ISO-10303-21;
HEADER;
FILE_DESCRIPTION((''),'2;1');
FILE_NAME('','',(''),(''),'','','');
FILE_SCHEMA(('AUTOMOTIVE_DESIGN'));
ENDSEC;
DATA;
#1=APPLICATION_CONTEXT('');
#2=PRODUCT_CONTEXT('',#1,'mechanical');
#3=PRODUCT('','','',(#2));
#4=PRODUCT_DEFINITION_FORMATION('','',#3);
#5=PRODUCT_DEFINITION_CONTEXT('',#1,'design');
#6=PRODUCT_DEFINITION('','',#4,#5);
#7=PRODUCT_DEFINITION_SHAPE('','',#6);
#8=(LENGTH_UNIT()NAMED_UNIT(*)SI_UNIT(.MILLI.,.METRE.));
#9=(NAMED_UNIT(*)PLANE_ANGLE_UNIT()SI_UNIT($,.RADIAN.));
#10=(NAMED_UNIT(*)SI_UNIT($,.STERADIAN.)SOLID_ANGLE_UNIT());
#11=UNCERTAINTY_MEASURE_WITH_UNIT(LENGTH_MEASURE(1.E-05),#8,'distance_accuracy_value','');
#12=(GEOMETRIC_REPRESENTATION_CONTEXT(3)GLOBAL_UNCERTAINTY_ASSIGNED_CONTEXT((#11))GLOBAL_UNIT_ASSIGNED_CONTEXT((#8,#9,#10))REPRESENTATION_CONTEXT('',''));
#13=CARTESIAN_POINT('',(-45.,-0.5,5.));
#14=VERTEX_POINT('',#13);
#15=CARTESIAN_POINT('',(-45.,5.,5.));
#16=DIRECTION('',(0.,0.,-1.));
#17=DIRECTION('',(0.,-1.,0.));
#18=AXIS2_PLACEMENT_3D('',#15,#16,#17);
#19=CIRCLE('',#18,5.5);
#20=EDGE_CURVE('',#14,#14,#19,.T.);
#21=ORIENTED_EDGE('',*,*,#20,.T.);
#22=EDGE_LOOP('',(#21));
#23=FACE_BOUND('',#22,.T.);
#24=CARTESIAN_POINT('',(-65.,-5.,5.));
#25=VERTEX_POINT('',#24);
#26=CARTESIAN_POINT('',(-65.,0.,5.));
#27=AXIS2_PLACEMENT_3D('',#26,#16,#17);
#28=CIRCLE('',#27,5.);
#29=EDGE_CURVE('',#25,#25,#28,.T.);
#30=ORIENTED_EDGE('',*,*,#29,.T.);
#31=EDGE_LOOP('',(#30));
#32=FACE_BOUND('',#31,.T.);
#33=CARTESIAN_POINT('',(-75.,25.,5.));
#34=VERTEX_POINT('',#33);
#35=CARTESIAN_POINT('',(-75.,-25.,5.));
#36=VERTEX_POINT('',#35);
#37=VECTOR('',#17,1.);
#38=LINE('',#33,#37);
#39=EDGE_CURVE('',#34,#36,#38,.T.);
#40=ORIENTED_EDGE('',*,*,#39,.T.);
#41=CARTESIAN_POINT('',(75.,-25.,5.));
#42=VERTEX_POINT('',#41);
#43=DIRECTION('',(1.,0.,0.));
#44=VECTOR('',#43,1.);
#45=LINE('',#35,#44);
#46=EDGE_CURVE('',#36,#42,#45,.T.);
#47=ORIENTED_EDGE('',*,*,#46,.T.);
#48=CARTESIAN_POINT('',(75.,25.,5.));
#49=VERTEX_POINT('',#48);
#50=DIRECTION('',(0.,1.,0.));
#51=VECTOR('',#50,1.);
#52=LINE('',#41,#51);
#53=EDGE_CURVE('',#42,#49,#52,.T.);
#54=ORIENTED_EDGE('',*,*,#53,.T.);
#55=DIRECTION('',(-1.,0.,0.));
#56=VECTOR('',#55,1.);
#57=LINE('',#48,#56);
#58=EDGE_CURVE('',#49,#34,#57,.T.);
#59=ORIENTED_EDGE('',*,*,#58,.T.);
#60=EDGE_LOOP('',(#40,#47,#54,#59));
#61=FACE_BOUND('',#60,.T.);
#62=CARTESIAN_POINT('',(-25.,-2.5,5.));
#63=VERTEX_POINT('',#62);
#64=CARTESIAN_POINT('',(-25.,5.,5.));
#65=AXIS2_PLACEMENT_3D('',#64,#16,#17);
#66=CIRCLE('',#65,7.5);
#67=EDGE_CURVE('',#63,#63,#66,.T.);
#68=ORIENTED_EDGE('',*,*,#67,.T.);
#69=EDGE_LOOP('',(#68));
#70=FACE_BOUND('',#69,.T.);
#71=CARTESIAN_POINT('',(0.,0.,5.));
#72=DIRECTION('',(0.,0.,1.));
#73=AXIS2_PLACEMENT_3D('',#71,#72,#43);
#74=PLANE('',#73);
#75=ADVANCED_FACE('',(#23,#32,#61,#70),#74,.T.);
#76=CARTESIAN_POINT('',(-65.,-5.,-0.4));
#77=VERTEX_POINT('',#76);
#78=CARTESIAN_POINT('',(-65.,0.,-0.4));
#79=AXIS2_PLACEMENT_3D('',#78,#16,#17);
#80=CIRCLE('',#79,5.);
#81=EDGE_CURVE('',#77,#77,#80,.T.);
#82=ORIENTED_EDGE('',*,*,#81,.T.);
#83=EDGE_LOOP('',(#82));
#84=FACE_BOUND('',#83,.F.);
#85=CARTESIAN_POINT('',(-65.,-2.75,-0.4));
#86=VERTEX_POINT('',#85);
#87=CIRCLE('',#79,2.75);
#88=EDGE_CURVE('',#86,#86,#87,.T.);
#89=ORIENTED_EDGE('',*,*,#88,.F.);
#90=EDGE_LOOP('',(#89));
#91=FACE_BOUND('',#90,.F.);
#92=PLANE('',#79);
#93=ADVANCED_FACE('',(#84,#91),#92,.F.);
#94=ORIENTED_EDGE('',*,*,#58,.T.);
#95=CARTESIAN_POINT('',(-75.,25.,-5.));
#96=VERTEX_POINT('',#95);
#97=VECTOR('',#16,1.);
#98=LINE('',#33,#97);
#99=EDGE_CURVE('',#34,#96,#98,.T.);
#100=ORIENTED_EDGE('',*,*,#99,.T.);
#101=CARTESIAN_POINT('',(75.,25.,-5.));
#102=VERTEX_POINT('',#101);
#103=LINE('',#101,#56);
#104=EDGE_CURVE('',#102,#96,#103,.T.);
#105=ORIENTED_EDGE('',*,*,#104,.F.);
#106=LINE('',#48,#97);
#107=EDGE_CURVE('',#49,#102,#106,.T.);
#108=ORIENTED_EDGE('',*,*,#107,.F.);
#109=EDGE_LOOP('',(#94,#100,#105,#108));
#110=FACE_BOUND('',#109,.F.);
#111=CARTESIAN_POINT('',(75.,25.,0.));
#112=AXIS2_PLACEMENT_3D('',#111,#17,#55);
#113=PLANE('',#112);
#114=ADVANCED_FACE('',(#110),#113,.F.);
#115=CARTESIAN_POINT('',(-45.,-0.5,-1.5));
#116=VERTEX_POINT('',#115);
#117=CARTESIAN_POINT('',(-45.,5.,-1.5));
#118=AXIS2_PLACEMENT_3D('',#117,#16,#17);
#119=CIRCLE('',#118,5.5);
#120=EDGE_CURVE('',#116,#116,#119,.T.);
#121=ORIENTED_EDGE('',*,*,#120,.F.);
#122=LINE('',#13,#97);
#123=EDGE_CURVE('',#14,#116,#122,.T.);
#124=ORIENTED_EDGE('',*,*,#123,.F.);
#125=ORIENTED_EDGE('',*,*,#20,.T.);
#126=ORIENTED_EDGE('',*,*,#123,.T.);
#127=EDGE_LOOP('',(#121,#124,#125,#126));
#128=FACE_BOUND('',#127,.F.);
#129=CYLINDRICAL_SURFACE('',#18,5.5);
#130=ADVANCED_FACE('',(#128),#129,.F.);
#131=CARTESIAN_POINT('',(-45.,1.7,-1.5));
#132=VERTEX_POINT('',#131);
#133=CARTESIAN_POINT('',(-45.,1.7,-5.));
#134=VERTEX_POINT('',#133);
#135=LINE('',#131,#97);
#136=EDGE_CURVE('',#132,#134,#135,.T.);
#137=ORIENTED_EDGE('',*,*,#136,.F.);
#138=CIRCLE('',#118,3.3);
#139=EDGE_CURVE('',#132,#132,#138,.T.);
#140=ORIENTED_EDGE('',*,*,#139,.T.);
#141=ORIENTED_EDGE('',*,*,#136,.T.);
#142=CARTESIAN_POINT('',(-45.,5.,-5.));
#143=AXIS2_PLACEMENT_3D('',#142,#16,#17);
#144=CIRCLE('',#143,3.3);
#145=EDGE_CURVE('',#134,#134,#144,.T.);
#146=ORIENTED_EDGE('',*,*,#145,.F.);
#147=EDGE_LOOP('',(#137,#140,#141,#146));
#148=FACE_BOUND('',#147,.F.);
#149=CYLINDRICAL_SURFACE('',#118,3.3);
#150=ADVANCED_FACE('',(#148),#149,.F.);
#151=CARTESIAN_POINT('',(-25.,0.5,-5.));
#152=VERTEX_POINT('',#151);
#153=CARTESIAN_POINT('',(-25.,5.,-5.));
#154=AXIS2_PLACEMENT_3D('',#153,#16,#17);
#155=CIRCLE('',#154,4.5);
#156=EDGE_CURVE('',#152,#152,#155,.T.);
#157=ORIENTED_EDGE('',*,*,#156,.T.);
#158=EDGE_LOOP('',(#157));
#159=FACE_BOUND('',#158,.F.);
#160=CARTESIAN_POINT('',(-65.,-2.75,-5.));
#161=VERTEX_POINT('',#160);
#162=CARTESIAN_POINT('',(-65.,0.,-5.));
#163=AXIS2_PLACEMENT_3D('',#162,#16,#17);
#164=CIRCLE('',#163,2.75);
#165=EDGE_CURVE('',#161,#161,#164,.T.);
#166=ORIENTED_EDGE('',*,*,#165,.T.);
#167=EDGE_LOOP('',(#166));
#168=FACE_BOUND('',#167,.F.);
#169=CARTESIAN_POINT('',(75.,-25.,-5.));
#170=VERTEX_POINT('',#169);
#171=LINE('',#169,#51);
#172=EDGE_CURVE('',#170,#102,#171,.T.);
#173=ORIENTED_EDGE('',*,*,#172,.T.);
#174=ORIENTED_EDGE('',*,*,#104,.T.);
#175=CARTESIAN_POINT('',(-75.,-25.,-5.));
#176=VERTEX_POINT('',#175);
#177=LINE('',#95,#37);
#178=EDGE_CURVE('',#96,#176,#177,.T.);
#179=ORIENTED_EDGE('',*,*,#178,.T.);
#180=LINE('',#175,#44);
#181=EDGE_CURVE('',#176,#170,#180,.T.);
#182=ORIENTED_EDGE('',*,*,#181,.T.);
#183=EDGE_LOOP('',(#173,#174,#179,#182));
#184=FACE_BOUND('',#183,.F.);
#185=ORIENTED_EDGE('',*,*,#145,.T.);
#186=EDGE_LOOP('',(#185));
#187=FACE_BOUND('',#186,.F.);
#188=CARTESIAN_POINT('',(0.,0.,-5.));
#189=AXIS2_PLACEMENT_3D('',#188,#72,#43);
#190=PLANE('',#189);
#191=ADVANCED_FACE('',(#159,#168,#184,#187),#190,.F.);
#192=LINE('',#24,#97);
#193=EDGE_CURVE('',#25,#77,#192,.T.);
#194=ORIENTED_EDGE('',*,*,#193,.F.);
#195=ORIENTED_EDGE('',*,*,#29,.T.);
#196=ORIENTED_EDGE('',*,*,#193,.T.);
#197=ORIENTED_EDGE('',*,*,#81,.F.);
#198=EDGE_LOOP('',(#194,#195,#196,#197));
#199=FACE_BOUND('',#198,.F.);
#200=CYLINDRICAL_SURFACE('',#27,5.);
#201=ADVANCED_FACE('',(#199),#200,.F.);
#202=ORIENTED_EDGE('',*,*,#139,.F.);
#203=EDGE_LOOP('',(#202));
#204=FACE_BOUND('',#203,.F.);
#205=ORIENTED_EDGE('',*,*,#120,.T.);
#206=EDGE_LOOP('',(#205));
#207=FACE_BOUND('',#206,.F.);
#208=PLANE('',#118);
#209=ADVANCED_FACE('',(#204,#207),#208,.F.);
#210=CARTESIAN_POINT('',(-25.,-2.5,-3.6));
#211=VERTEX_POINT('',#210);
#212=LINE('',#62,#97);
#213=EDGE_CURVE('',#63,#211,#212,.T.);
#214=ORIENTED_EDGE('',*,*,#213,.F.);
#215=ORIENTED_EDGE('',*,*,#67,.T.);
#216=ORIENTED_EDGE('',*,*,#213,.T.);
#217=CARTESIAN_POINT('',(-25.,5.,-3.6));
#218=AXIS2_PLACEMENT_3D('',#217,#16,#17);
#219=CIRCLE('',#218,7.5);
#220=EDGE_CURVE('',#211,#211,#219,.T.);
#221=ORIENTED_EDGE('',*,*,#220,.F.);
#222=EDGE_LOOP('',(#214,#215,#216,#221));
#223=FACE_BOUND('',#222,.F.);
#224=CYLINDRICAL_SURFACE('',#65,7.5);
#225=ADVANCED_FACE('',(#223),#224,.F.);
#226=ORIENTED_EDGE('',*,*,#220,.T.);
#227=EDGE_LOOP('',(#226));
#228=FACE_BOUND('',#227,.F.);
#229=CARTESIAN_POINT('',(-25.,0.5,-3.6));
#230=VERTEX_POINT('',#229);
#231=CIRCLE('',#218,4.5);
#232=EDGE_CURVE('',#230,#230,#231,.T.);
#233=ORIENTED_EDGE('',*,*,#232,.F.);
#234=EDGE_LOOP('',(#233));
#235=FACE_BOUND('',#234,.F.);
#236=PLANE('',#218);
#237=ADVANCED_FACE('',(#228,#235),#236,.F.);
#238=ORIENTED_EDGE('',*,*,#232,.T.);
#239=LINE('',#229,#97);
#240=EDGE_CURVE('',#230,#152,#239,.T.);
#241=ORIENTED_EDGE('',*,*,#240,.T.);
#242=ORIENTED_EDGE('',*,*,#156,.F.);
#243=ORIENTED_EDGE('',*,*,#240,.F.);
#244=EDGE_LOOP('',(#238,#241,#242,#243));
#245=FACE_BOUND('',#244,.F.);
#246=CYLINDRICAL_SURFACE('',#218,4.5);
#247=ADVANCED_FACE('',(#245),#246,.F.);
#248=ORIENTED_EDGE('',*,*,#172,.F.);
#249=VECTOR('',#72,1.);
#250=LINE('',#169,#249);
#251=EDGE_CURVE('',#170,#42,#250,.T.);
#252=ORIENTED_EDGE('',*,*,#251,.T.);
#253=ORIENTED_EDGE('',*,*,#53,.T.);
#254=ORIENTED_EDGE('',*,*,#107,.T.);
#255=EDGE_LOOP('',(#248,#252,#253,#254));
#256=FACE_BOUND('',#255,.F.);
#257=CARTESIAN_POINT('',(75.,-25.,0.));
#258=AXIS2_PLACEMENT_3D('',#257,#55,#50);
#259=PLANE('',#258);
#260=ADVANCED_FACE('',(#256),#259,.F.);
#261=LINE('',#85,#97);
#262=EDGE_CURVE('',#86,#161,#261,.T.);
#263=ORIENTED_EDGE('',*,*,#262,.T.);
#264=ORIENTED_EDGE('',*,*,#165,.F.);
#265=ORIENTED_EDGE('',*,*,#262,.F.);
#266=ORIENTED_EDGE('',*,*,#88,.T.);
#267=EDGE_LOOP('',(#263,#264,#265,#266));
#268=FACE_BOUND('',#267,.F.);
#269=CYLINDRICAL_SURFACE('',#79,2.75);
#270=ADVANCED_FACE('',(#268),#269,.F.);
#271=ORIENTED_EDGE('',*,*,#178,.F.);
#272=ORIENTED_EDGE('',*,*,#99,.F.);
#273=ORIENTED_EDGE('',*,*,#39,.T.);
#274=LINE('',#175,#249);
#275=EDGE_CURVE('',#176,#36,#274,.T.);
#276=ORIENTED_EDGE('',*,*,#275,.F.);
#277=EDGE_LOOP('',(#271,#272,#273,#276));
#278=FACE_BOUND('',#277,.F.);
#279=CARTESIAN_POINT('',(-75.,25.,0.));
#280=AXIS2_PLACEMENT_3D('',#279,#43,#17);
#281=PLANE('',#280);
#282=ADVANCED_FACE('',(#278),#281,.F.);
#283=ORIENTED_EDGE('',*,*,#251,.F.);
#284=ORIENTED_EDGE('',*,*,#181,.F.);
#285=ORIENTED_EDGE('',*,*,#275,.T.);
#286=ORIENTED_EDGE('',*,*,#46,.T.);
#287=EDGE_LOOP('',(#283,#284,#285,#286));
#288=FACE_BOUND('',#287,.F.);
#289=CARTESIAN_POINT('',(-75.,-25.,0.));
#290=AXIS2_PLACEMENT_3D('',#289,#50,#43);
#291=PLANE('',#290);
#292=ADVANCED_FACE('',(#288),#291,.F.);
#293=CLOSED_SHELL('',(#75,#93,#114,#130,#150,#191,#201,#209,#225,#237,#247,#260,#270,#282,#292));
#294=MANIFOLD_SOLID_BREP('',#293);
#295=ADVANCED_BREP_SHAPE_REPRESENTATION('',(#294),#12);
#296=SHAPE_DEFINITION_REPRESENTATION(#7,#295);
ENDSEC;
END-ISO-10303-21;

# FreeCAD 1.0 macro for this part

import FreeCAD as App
import Part
import Sketcher


def add_polygon(sketch, points):
    """Adds a closed chain of lines whose ends are joined by coincident constraints."""
    first, n = sketch.GeometryCount, len(points)
    for a, b in zip(points, points[1:] + points[:1]):
        sketch.addGeometry(Part.LineSegment(App.Vector(*a, 0), App.Vector(*b, 0)), False)
    for i in range(n):
        sketch.addConstraint(Sketcher.Constraint("Coincident", first + i, 2, first + (i + 1) % n, 1))

doc = App.newDocument("Part")
body = doc.addObject("PartDesign::Body", "Body")

# Sketch on XY plane
sketch1 = doc.addObject("Sketcher::SketchObject", "Sketch")
body.addObject(sketch1)
sketch1.AttachmentSupport = (doc.XY_Plane, [""])
sketch1.MapMode = "FlatFace"
add_polygon(sketch1, [(-75, 25), (-75, -25), (75, -25), (75, 25)])  # lines 0-3
sketch1.addConstraint(Sketcher.Constraint("Vertical", 0))
sketch1.addConstraint(Sketcher.Constraint("Horizontal", 1))
sketch1.addConstraint(Sketcher.Constraint("Vertical", 2))
sketch1.addConstraint(Sketcher.Constraint("Horizontal", 3))
sketch1.addConstraint(Sketcher.Constraint("Symmetric", 0, 2, 2, 2, -1, 1))
sketch1.addConstraint(Sketcher.Constraint("DistanceX", 1, 1, 1, 2, 150.0))
sketch1.addConstraint(Sketcher.Constraint("DistanceY", 0, 2, 0, 1, 50.0))
pad1 = doc.addObject("PartDesign::Pad", "Pad")
body.addObject(pad1)
pad1.Profile = sketch1
pad1.Length = 10
pad1.Midplane = True

# Sketch on XY plane
sketch2 = doc.addObject("Sketcher::SketchObject", "Sketch001")
body.addObject(sketch2)
sketch2.AttachmentSupport = (doc.XY_Plane, [""])
sketch2.MapMode = "FlatFace"
sketch2.AttachmentOffset = App.Placement(App.Vector(0, 0, 5), App.Rotation())
sketch2.addGeometry(Part.Circle(App.Vector(-65, 0, 0), App.Vector(0, 0, 1), 2.8), False)
sketch2.addConstraint(Sketcher.Constraint("PointOnObject", 0, 3, -1))
sketch2.addConstraint(Sketcher.Constraint("Diameter", 0, 5.5))
sketch2.addConstraint(Sketcher.Constraint("DistanceX", 0, 3, -1, 1, 65.0))
doc.recompute()
hole = doc.addObject("PartDesign::Hole", "Hole")
body.addObject(hole)
hole.Profile = sketch2
hole.ThreadType = "None"
hole.Diameter = 5.5
hole.DepthType = "Dimension"
hole.Depth = 14.2
hole.DrillPoint = "Angled"
hole.DrillPointAngle = 118
hole.HoleCutType = "Counterbore"
hole.HoleCutDiameter = 10
hole.HoleCutDepth = 5.4

# Sketch on XY plane
sketch3 = doc.addObject("Sketcher::SketchObject", "Sketch002")
body.addObject(sketch3)
sketch3.AttachmentSupport = (doc.XY_Plane, [""])
sketch3.MapMode = "FlatFace"
sketch3.AttachmentOffset = App.Placement(App.Vector(0, 0, 5), App.Rotation())
sketch3.addGeometry(Part.Circle(App.Vector(-45, 5, 0), App.Vector(0, 0, 1), 3.3), False)
sketch3.addConstraint(Sketcher.Constraint("Diameter", 0, 6.6))
sketch3.addConstraint(Sketcher.Constraint("DistanceX", 0, 3, -1, 1, 45.0))
sketch3.addConstraint(Sketcher.Constraint("DistanceY", -1, 1, 0, 3, 5.0))
doc.recompute()
hole2 = doc.addObject("PartDesign::Hole", "Hole001")
body.addObject(hole2)
hole2.Profile = sketch3
hole2.ThreadType = "None"
hole2.Diameter = 6.6
hole2.DepthType = "Dimension"
hole2.Depth = 14.2
hole2.DrillPoint = "Angled"
hole2.DrillPointAngle = 118
hole2.HoleCutType = "Counterbore"
hole2.HoleCutDiameter = 11
hole2.HoleCutDepth = 6.5

# Sketch on XY plane
sketch4 = doc.addObject("Sketcher::SketchObject", "Sketch003")
body.addObject(sketch4)
sketch4.AttachmentSupport = (doc.XY_Plane, [""])
sketch4.MapMode = "FlatFace"
sketch4.AttachmentOffset = App.Placement(App.Vector(0, 0, 5), App.Rotation())
sketch4.addGeometry(Part.Circle(App.Vector(-25, 5, 0), App.Vector(0, 0, 1), 4.5), False)
sketch4.addConstraint(Sketcher.Constraint("Diameter", 0, 9.0))
sketch4.addConstraint(Sketcher.Constraint("DistanceX", 0, 3, -1, 1, 25.0))
sketch4.addConstraint(Sketcher.Constraint("DistanceY", -1, 1, 0, 3, 5.0))
doc.recompute()
hole3 = doc.addObject("PartDesign::Hole", "Hole002")
body.addObject(hole3)
hole3.Profile = sketch4
hole3.ThreadType = "None"
hole3.Diameter = 9
hole3.DepthType = "Dimension"
hole3.Depth = 14.2
hole3.DrillPoint = "Angled"
hole3.DrillPointAngle = 118
hole3.HoleCutType = "Counterbore"
hole3.HoleCutDiameter = 15
hole3.HoleCutDepth = 8.6

doc.recompute()
